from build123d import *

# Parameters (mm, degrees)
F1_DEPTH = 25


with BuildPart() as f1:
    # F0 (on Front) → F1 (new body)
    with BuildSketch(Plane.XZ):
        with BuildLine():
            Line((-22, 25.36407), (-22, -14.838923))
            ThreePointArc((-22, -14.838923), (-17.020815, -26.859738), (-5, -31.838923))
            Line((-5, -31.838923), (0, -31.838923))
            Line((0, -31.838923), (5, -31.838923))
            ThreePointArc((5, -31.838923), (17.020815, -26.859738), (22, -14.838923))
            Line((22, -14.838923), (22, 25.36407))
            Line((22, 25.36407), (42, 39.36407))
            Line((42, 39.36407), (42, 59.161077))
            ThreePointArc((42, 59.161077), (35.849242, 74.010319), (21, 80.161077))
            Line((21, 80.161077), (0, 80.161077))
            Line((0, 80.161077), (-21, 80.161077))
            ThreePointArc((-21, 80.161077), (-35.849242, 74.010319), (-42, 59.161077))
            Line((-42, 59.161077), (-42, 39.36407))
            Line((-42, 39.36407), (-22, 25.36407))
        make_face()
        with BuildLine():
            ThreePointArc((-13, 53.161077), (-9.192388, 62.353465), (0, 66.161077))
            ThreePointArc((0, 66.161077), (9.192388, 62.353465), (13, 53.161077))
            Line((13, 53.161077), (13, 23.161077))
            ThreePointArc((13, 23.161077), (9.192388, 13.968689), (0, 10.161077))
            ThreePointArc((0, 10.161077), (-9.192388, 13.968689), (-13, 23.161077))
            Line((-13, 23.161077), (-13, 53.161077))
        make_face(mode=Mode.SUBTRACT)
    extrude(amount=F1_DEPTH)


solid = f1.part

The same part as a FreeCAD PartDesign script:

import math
import FreeCAD as App
import Part
import Sketcher
from FreeCAD import Vector

doc = App.newDocument("Part")
body = doc.addObject("PartDesign::Body", "Body")

sketch1 = body.newObject("Sketcher::SketchObject", "Sketch")
sketch1.AttachmentSupport = (doc.getObject("XZ_Plane"), [""])
sketch1.MapMode = "FlatFace"
sketch1.addGeometry(Part.LineSegment(Vector(-22, 25.36407, 0), Vector(-22, -14.838923, 0)), False)
sketch1.addGeometry(Part.ArcOfCircle(Part.Circle(Vector(-4.999999, -14.838922, 0), Vector(0, 0, 1), 17.000001), math.radians(-179.999997), math.radians(-90.000003)), False)
sketch1.addGeometry(Part.LineSegment(Vector(-5, -31.838923, 0), Vector(5, -31.838923, 0)), False)
sketch1.addGeometry(Part.ArcOfCircle(Part.Circle(Vector(4.999999, -14.838922, 0), Vector(0, 0, 1), 17.000001), math.radians(-89.999997), math.radians(-0.000003)), False)
sketch1.addGeometry(Part.LineSegment(Vector(22, -14.838923, 0), Vector(22, 25.36407, 0)), False)
sketch1.addGeometry(Part.LineSegment(Vector(22, 25.36407, 0), Vector(42, 39.36407, 0)), False)
sketch1.addGeometry(Part.LineSegment(Vector(42, 39.36407, 0), Vector(42, 59.161077, 0)), False)
sketch1.addGeometry(Part.ArcOfCircle(Part.Circle(Vector(20.999999, 59.161076, 0), Vector(0, 0, 1), 21.000001), math.radians(0.000004), math.radians(89.999996)), False)
sketch1.addGeometry(Part.LineSegment(Vector(21, 80.161077, 0), Vector(-21, 80.161077, 0)), False)
sketch1.addGeometry(Part.ArcOfCircle(Part.Circle(Vector(-20.999999, 59.161076, 0), Vector(0, 0, 1), 21.000001), math.radians(90.000004), math.radians(179.999996)), False)
sketch1.addGeometry(Part.LineSegment(Vector(-42, 59.161077, 0), Vector(-42, 39.36407, 0)), False)
sketch1.addGeometry(Part.LineSegment(Vector(-42, 39.36407, 0), Vector(-22, 25.36407, 0)), False)
sketch1.addGeometry(Part.LineSegment(Vector(-13, 23.161077, 0), Vector(-13, 53.161077, 0)), False)
sketch1.addGeometry(Part.ArcOfCircle(Part.Circle(Vector(0.000001, 53.161076, 0), Vector(0, 0, 1), 13.000001), math.radians(90.000002), math.radians(179.999998)), False)
sketch1.addGeometry(Part.ArcOfCircle(Part.Circle(Vector(-0.000001, 53.161076, 0), Vector(0, 0, 1), 13.000001), math.radians(0.000002), math.radians(89.999998)), False)
sketch1.addGeometry(Part.LineSegment(Vector(13, 53.161077, 0), Vector(13, 23.161077, 0)), False)
sketch1.addGeometry(Part.ArcOfCircle(Part.Circle(Vector(-0.000001, 23.161078, 0), Vector(0, 0, 1), 13.000001), math.radians(-89.999998), math.radians(-0.000002)), False)
sketch1.addGeometry(Part.ArcOfCircle(Part.Circle(Vector(0.000001, 23.161078, 0), Vector(0, 0, 1), 13.000001), math.radians(-179.999998), math.radians(-90.000002)), False)
sketch1.addConstraint(Sketcher.Constraint("Tangent", 0, 2, 1, 1))
sketch1.addConstraint(Sketcher.Constraint("Tangent", 1, 2, 2, 1))
sketch1.addConstraint(Sketcher.Constraint("Tangent", 2, 2, 3, 1))
sketch1.addConstraint(Sketcher.Constraint("Tangent", 3, 2, 4, 1))
sketch1.addConstraint(Sketcher.Constraint("Coincident", 4, 2, 5, 1))
sketch1.addConstraint(Sketcher.Constraint("Coincident", 5, 2, 6, 1))
sketch1.addConstraint(Sketcher.Constraint("Tangent", 6, 2, 7, 1))
sketch1.addConstraint(Sketcher.Constraint("Tangent", 7, 2, 8, 1))
sketch1.addConstraint(Sketcher.Constraint("Tangent", 8, 2, 9, 1))
sketch1.addConstraint(Sketcher.Constraint("Tangent", 9, 2, 10, 1))
sketch1.addConstraint(Sketcher.Constraint("Coincident", 10, 2, 11, 1))
sketch1.addConstraint(Sketcher.Constraint("Coincident", 11, 2, 0, 1))
sketch1.addConstraint(Sketcher.Constraint("Tangent", 12, 2, 13, 2))
sketch1.addConstraint(Sketcher.Constraint("Tangent", 13, 1, 14, 2))
sketch1.addConstraint(Sketcher.Constraint("Tangent", 14, 1, 15, 1))
sketch1.addConstraint(Sketcher.Constraint("Tangent", 15, 2, 16, 2))
sketch1.addConstraint(Sketcher.Constraint("Tangent", 16, 1, 17, 2))
sketch1.addConstraint(Sketcher.Constraint("Tangent", 17, 1, 12, 1))
sketch1.addConstraint(Sketcher.Constraint("Vertical", 0))
sketch1.addConstraint(Sketcher.Constraint("Horizontal", 2))
sketch1.addConstraint(Sketcher.Constraint("Vertical", 4))
sketch1.addConstraint(Sketcher.Constraint("Vertical", 6))
sketch1.addConstraint(Sketcher.Constraint("Horizontal", 8))
sketch1.addConstraint(Sketcher.Constraint("Vertical", 10))
sketch1.addConstraint(Sketcher.Constraint("Vertical", 12))
sketch1.addConstraint(Sketcher.Constraint("Vertical", 15))
sketch1.addConstraint(Sketcher.Constraint("Equal", 1, 3))
sketch1.addConstraint(Sketcher.Constraint("Equal", 7, 9))
sketch1.addConstraint(Sketcher.Constraint("Equal", 13, 14))
sketch1.addConstraint(Sketcher.Constraint("Equal", 14, 16))
sketch1.addConstraint(Sketcher.Constraint("Symmetric", 5, 2, 10, 2, -2))
sketch1.addConstraint(Sketcher.Constraint("Symmetric", 4, 2, 11, 2, -2))
sketch1.addConstraint(Sketcher.Constraint("PointOnObject", 13, 3, -2))
sketch1.addConstraint(Sketcher.Constraint("PointOnObject", 13, 1, -2))
sketch1.addConstraint(Sketcher.Constraint("PointOnObject", 16, 1, -2))
sketch1.addConstraint(Sketcher.Constraint("Radius", 1, 17.000001))
sketch1.addConstraint(Sketcher.Constraint("Radius", 7, 21.000001))
sketch1.addConstraint(Sketcher.Constraint("Radius", 13, 13.000001))
sketch1.addConstraint(Sketcher.Constraint("DistanceX", 2, 1, 2, 2, 10.0))
sketch1.addConstraint(Sketcher.Constraint("DistanceX", 8, 2, 8, 1, 42.0))
sketch1.addConstraint(Sketcher.Constraint("DistanceY", 12, 1, 12, 2, 30.0))
sketch1.addConstraint(Sketcher.Constraint("DistanceY", 13, 3, 7, 3, 5.999999))
sketch1.addConstraint(Sketcher.Constraint("DistanceY", 3, 3, 13, 3, 67.999999))
sketch1.addConstraint(Sketcher.Constraint("DistanceY", 4, 2, 5, 2, 14.0))
sketch1.addConstraint(Sketcher.Constraint("DistanceY", 0, 2, 0, 1, 40.202993))
sketch1.addConstraint(Sketcher.Constraint("DistanceY", -1, 1, 4, 2, 25.36407))
pad1 = body.newObject("PartDesign::Pad", "Pad")
pad1.Profile = sketch1
pad1.Length = 25

doc.recompute()
